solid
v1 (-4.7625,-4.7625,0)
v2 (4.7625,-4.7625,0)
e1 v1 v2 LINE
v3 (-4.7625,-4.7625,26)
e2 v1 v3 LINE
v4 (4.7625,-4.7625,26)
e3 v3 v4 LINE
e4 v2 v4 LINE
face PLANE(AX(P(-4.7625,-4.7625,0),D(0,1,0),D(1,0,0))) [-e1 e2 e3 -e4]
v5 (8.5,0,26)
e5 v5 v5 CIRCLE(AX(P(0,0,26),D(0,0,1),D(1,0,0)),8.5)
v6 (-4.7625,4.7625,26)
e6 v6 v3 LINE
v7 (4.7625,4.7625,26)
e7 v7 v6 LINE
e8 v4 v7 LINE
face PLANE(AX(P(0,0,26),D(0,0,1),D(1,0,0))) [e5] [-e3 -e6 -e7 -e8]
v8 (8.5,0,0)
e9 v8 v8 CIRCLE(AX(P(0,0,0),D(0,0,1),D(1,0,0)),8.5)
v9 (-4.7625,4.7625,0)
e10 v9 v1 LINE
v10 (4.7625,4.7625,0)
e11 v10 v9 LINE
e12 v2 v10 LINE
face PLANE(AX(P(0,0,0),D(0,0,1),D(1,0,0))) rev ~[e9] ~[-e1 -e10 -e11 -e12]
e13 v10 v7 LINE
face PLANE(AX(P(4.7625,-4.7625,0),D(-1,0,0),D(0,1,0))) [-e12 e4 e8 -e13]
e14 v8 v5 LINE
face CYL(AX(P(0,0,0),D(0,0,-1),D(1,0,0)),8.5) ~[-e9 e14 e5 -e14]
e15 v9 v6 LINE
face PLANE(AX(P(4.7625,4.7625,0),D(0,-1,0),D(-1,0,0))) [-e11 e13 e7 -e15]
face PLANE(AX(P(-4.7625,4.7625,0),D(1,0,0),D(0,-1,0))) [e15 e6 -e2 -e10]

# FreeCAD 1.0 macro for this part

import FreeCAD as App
import Part
import Sketcher

V = App.Vector

doc = App.newDocument("Part")
body = doc.addObject("PartDesign::Body", "Body")

# Sketch on XY plane
sketch1 = body.newObject("Sketcher::SketchObject", "Sketch")
sketch1.AttachmentSupport = (doc.getObject("XY_Plane"), [""])
sketch1.MapMode = "FlatFace"
sketch1.addGeometry([
    Part.Circle(V(0, 0, 0), V(0, 0, 1), 8),  # 0
    Part.LineSegment(V(-5, 5, 0), V(5, 5, 0)),  # 1
    Part.LineSegment(V(5, 5, 0), V(5, -5, 0)),  # 2
    Part.LineSegment(V(5, -5, 0), V(-5, -5, 0)),  # 3
    Part.LineSegment(V(-5, -5, 0), V(-5, 5, 0)),  # 4
], False)
sketch1.addConstraint([
    Sketcher.Constraint("Coincident", 1, 2, 2, 1),
    Sketcher.Constraint("Coincident", 2, 2, 3, 1),
    Sketcher.Constraint("Coincident", 3, 2, 4, 1),
    Sketcher.Constraint("Coincident", 4, 2, 1, 1),
    Sketcher.Constraint("Horizontal", 1),
    Sketcher.Constraint("Vertical", 2),
    Sketcher.Constraint("Horizontal", 3),
    Sketcher.Constraint("Vertical", 4),
    Sketcher.Constraint("Coincident", 0, 3, -1, 1),
    Sketcher.Constraint("Symmetric", 1, 2, 3, 2, -1, 1),
    Sketcher.Constraint("Equal", 3, 2),
    Sketcher.Constraint("Diameter", 0, 17.0),
    Sketcher.Constraint("DistanceX", 1, 1, 1, 2, 9.525),
])
pad1 = body.newObject("PartDesign::Pad", "Pad")
pad1.Profile = sketch1
pad1.Length = 26

doc.recompute()
